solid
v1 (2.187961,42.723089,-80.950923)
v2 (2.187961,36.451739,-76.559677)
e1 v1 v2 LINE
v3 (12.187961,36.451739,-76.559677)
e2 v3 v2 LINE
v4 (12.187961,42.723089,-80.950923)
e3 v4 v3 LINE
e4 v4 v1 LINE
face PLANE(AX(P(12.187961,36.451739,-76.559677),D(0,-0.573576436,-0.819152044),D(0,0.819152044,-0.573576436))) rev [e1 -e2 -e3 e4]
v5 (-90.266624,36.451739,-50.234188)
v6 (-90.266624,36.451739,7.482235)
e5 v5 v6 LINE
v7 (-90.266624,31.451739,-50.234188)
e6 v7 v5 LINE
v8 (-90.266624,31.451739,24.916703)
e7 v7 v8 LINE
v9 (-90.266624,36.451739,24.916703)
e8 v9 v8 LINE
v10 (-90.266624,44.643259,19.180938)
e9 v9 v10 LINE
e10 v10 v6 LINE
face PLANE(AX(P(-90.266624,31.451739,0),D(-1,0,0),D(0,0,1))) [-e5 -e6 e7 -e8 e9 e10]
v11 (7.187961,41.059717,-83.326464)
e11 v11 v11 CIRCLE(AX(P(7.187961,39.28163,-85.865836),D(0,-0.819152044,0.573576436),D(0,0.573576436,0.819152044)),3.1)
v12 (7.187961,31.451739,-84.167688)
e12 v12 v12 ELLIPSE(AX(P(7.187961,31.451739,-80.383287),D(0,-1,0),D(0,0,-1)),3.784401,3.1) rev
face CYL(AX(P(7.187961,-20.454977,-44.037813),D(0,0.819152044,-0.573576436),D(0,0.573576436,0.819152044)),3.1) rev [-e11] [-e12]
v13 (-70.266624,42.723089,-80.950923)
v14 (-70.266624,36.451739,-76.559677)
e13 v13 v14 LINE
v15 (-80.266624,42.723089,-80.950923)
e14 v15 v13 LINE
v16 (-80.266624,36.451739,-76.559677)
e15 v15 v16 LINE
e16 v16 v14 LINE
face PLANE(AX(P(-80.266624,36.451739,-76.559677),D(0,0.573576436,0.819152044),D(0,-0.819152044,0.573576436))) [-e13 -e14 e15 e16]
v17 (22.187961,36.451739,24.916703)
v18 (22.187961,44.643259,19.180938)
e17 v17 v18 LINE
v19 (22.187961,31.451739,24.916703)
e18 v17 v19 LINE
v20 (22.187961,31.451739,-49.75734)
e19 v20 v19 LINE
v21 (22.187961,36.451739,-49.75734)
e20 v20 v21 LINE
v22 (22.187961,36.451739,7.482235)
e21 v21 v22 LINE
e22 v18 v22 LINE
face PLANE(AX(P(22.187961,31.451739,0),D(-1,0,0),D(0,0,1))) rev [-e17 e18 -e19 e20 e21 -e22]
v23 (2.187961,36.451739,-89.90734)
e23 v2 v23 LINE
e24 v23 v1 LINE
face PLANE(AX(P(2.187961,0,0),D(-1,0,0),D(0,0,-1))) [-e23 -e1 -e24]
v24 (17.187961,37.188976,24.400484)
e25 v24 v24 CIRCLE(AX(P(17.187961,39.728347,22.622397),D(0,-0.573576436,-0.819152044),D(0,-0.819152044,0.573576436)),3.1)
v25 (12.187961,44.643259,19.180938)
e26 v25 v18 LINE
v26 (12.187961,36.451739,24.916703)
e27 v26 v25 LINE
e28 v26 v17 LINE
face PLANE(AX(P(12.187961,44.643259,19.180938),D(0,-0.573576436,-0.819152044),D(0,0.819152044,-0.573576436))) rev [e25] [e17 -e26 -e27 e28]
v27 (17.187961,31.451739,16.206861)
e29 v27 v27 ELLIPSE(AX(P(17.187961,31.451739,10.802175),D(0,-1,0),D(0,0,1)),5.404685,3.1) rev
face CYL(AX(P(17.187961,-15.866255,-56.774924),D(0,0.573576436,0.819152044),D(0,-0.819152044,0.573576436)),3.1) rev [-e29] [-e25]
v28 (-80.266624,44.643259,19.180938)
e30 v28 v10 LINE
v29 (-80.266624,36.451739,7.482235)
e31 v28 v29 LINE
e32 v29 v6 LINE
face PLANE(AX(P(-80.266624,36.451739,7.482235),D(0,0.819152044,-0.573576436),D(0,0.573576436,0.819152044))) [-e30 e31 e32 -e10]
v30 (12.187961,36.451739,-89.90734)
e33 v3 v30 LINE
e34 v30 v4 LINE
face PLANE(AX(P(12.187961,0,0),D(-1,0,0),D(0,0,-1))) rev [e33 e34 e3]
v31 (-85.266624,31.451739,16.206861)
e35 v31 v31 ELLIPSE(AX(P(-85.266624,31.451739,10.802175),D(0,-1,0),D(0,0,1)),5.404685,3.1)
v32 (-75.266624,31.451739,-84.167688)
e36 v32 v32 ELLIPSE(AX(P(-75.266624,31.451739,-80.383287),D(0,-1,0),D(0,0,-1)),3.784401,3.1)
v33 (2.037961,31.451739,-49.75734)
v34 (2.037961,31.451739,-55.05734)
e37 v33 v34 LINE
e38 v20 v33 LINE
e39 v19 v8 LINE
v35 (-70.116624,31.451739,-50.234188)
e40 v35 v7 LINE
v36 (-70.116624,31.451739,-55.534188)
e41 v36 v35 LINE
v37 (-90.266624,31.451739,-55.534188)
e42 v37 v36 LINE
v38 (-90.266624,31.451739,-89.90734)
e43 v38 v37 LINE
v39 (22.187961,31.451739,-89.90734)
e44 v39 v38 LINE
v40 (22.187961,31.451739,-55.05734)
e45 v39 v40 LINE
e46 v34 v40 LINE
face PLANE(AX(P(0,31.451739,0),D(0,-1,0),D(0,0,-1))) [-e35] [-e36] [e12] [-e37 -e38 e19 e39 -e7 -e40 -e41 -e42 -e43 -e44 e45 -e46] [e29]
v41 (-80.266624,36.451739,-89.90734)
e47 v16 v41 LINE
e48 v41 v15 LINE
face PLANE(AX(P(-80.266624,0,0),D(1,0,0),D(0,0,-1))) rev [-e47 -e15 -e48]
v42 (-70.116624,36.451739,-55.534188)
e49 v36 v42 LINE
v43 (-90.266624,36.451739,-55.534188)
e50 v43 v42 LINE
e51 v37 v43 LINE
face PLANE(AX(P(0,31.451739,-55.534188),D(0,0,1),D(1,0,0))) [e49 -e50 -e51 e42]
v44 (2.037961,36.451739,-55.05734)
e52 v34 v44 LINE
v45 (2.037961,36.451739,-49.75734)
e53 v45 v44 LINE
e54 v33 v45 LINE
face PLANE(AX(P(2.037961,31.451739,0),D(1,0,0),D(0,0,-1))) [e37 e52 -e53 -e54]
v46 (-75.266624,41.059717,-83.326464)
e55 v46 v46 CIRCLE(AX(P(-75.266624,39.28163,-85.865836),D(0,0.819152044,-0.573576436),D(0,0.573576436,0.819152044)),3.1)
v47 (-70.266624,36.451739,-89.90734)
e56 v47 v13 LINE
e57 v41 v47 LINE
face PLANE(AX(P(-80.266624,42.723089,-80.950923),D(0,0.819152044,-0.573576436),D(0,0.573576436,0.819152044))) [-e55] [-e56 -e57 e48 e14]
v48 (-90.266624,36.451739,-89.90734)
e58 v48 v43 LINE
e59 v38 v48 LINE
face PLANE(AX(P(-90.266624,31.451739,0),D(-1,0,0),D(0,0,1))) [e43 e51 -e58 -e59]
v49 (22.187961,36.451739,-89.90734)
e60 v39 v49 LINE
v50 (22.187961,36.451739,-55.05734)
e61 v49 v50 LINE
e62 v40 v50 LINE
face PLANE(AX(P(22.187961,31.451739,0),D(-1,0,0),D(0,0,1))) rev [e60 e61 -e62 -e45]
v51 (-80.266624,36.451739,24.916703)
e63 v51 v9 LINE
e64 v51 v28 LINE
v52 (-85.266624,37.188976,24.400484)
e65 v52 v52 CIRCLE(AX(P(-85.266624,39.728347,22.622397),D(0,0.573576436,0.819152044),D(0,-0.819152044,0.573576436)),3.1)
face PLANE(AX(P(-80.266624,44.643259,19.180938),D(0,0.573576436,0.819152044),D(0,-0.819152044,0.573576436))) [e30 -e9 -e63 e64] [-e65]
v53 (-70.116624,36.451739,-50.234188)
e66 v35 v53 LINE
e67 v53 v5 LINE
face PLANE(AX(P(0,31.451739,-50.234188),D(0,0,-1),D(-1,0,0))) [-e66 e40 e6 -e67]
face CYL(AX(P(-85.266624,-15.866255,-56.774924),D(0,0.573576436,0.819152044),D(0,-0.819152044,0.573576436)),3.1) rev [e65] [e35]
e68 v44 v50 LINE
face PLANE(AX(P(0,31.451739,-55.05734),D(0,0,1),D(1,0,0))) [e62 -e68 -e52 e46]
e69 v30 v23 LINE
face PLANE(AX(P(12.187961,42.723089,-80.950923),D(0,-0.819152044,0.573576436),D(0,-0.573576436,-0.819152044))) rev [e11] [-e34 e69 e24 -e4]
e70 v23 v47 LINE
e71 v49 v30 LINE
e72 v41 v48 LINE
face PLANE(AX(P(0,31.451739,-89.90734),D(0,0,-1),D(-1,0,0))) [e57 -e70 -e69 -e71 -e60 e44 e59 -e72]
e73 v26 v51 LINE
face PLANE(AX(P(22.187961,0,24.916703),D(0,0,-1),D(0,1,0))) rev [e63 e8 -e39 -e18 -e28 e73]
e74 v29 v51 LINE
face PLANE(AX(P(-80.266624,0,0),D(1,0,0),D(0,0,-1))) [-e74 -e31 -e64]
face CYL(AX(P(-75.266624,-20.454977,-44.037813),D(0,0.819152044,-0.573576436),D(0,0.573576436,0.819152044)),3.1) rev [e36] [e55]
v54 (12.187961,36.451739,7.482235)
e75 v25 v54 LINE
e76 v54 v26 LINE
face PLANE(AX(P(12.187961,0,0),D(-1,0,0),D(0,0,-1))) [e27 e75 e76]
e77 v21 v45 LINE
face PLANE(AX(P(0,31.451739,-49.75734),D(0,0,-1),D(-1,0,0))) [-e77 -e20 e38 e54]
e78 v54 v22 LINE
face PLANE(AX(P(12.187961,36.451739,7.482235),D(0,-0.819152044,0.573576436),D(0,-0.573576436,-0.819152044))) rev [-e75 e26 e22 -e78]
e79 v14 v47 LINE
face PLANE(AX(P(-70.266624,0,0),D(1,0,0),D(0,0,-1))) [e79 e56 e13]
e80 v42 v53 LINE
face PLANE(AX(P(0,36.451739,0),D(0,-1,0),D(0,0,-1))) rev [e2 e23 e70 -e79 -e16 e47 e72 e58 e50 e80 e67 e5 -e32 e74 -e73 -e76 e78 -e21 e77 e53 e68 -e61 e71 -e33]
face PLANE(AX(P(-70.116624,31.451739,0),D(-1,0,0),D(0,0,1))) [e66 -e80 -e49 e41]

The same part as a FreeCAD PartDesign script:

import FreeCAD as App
import Part
import Sketcher

V = App.Vector
Q = App.Units.Quantity

doc = App.newDocument("Part")
body = doc.addObject("PartDesign::Body", "Body")

# Sketch on XZ plane
sketch1 = body.newObject("Sketcher::SketchObject", "Sketch")
sketch1.AttachmentSupport = (doc.getObject("XZ_Plane"), [""])
sketch1.MapMode = "FlatFace"
sketch1.AttachmentOffset = App.Placement(V(0, 0, -33.951739), App.Rotation())
sketch1.addGeometry([
    Part.LineSegment(V(-90.266624, -89.90734, 0), V(22.187961, -89.90734, 0)),  # 0
    Part.LineSegment(V(22.187961, -89.90734, 0), V(22.187961, -55.05734, 0)),  # 1
    Part.LineSegment(V(22.187961, -55.05734, 0), V(2.037961, -55.05734, 0)),  # 2
    Part.LineSegment(V(2.037961, -55.05734, 0), V(2.037961, -49.75734, 0)),  # 3
    Part.LineSegment(V(2.037961, -49.75734, 0), V(22.187961, -49.75734, 0)),  # 4
    Part.LineSegment(V(22.187961, -49.75734, 0), V(22.187961, 30.09266, 0)),  # 5
    Part.LineSegment(V(22.187961, 30.09266, 0), V(-90.266624, 30.09266, 0)),  # 6
    Part.LineSegment(V(-90.266624, 30.09266, 0), V(-90.266624, -50.234188, 0)),  # 7
    Part.LineSegment(V(-90.266624, -50.234188, 0), V(-70.116624, -50.234188, 0)),  # 8
    Part.LineSegment(V(-70.116624, -50.234188, 0), V(-70.116624, -55.534188, 0)),  # 9
    Part.LineSegment(V(-70.116624, -55.534188, 0), V(-90.266624, -55.534188, 0)),  # 10
    Part.LineSegment(V(-90.266624, -55.534188, 0), V(-90.266624, -89.90734, 0)),  # 11
], False)
sketch1.addConstraint([
    Sketcher.Constraint("Coincident", 0, 2, 1, 1),
    Sketcher.Constraint("Coincident", 1, 2, 2, 1),
    Sketcher.Constraint("Coincident", 2, 2, 3, 1),
    Sketcher.Constraint("Coincident", 3, 2, 4, 1),
    Sketcher.Constraint("Coincident", 4, 2, 5, 1),
    Sketcher.Constraint("Coincident", 5, 2, 6, 1),
    Sketcher.Constraint("Coincident", 6, 2, 7, 1),
    Sketcher.Constraint("Coincident", 7, 2, 8, 1),
    Sketcher.Constraint("Coincident", 8, 2, 9, 1),
    Sketcher.Constraint("Coincident", 9, 2, 10, 1),
    Sketcher.Constraint("Coincident", 10, 2, 11, 1),
    Sketcher.Constraint("Coincident", 11, 2, 0, 1),
    Sketcher.Constraint("Horizontal", 0),
    Sketcher.Constraint("Vertical", 1),
    Sketcher.Constraint("Horizontal", 2),
    Sketcher.Constraint("Vertical", 3),
    Sketcher.Constraint("Horizontal", 4),
    Sketcher.Constraint("Vertical", 5),
    Sketcher.Constraint("Horizontal", 6),
    Sketcher.Constraint("Vertical", 7),
    Sketcher.Constraint("Horizontal", 8),
    Sketcher.Constraint("Vertical", 9),
    Sketcher.Constraint("Horizontal", 10),
    Sketcher.Constraint("Vertical", 11),
    Sketcher.Constraint("Vertical", 1, 2, 4, 2),
    Sketcher.Constraint("Vertical", 7, 2, 10, 2),
    Sketcher.Constraint("Equal", 4, 8),
    Sketcher.Constraint("Equal", 3, 9),
    Sketcher.Constraint("DistanceY", 3, 1, 3, 2, Q("5.3 mm")),
    Sketcher.Constraint("DistanceY", 0, 2, 5, 2, Q("120 mm")),
    Sketcher.Constraint("DistanceX", 2, 2, 2, 1, Q("20.15 mm")),
    Sketcher.Constraint("DistanceY", 1, 1, 1, 2, Q("34.85 mm")),
    Sketcher.Constraint("DistanceY", 7, 2, 7, 1, Q("80.326848 mm")),
    Sketcher.Constraint("DistanceX", 0, 1, 0, 2, Q("112.454585 mm")),
    Sketcher.Constraint("DistanceX", -1, 1, 0, 2, Q("22.187961 mm")),
    Sketcher.Constraint("DistanceY", 0, 2, -1, 1, Q("89.90734 mm")),
])
pad1 = body.newObject("PartDesign::Pad", "Pad")
pad1.Profile = sketch1
pad1.Length = 5
pad1.Midplane = True

# Sketch on YZ plane
sketch2 = body.newObject("Sketcher::SketchObject", "Sketch001")
sketch2.AttachmentSupport = (doc.getObject("YZ_Plane"), [""])
sketch2.MapMode = "FlatFace"
sketch2.AttachmentOffset = App.Placement(V(0, 0, -90.266624), App.Rotation())
sketch2.addGeometry([
    Part.LineSegment(V(44.643259, 19.180938, 0), V(36.451739, 7.482235, 0)),
    Part.LineSegment(V(36.451739, 7.482235, 0), V(36.451739, 24.916703, 0)),
    Part.LineSegment(V(36.451739, 24.916703, 0), V(44.643259, 19.180938, 0)),
], False)
sketch2.addConstraint([
    Sketcher.Constraint("Coincident", 0, 2, 1, 1),
    Sketcher.Constraint("Coincident", 1, 2, 2, 1),
    Sketcher.Constraint("Coincident", 2, 2, 0, 1),
    Sketcher.Constraint("Vertical", 1),
    Sketcher.Constraint("Perpendicular", 0, 2),
    Sketcher.Constraint("Angle", 0, Q("-125 deg")),
    Sketcher.Constraint("Distance", 2, Q("10 mm")),
    Sketcher.Constraint("DistanceX", -1, 1, 0, 2, Q("36.451739 mm")),
    Sketcher.Constraint("DistanceY", -1, 1, 2, 2, Q("19.180938 mm")),
])
pad2 = body.newObject("PartDesign::Pad", "Pad001")
pad2.Profile = sketch2
pad2.Length = 10

# Sketch on an angled plane
sketch3 = body.newObject("Sketcher::SketchObject", "Sketch002")
sketch3.Placement = App.Placement(V(0, 23.699276, 33.846073), App.Rotation(V(1, 0, 0), V(0, 0.819152044, -0.573576436), V(0, 0.573576436, 0.819152044), "ZXY"))
sketch3.addGeometry(Part.Circle(V(-85.266624, 19.567883, 0), V(0, 0, 1), 3.1), False)
sketch3.addConstraint([
    Sketcher.Constraint("Diameter", 0, Q("6.2 mm")),
    Sketcher.Constraint("DistanceX", 0, 3, -1, 1, Q("85.266624 mm")),
    Sketcher.Constraint("DistanceY", -1, 1, 0, 3, Q("19.567883 mm")),
])
pocket1 = body.newObject("PartDesign::Pocket", "Pocket")
pocket1.Profile = sketch3
pocket1.Type = "ThroughAll"

# Sketch on YZ plane
sketch4 = body.newObject("Sketcher::SketchObject", "Sketch003")
sketch4.AttachmentSupport = (doc.getObject("YZ_Plane"), [""])
sketch4.MapMode = "FlatFace"
sketch4.AttachmentOffset = App.Placement(V(0, 0, -70.266624), App.Rotation())
sketch4.addGeometry([
    Part.LineSegment(V(42.723089, -80.950923, 0), V(36.451739, -76.559677, 0)),
    Part.LineSegment(V(36.451739, -76.559677, 0), V(36.451739, -89.90734, 0)),
    Part.LineSegment(V(36.451739, -89.90734, 0), V(42.723089, -80.950923, 0)),
], False)
sketch4.addConstraint([
    Sketcher.Constraint("Coincident", 0, 2, 1, 1),
    Sketcher.Constraint("Coincident", 1, 2, 2, 1),
    Sketcher.Constraint("Coincident", 2, 2, 0, 1),
    Sketcher.Constraint("Vertical", 1),
    Sketcher.Constraint("Perpendicular", 0, 2),
    Sketcher.Constraint("Angle", 0, Q("145 deg")),
    Sketcher.Constraint("DistanceY", 1, 2, 1, 1, Q("13.347663 mm")),
    Sketcher.Constraint("DistanceX", -1, 1, 0, 2, Q("36.451739 mm")),
    Sketcher.Constraint("DistanceY", 1, 2, -1, 1, Q("89.90734 mm")),
])
pad3 = body.newObject("PartDesign::Pad", "Pad002")
pad3.Profile = sketch4
pad3.Length = 10
pad3.Reversed = True

# Sketch on an angled plane
sketch5 = body.newObject("Sketcher::SketchObject", "Sketch004")
sketch5.Placement = App.Placement(V(0, 66.702116, -46.705324), App.Rotation(V(1, 0, 0), V(0, -0.573576436, -0.819152044), V(0, 0.819152044, -0.573576436), "ZXY"))
sketch5.addGeometry(Part.Circle(V(-75.266624, 47.806157, 0), V(0, 0, 1), 3.1), False)
sketch5.addConstraint([
    Sketcher.Constraint("Diameter", 0, Q("6.2 mm")),
    Sketcher.Constraint("DistanceX", 0, 3, -1, 1, Q("75.266624 mm")),
    Sketcher.Constraint("DistanceY", -1, 1, 0, 3, Q("47.806157 mm")),
])
pocket2 = body.newObject("PartDesign::Pocket", "Pocket001")
pocket2.Profile = sketch5
pocket2.Type = "ThroughAll"
doc.recompute()

datumplane = body.newObject("PartDesign::Plane", "DatumPlane")
datumplane.AttachmentSupport = (doc.getObject("YZ_Plane"), [""])
datumplane.MapMode = "FlatFace"
datumplane.AttachmentOffset = App.Placement(V(0, 0, -34.039332), App.Rotation())
mirrored = body.newObject("PartDesign::Mirrored", "Mirrored")
mirrored.Originals = [pad2, pocket1, pad3, pocket2]
mirrored.MirrorPlane = (datumplane, [""])
body.Tip = mirrored

# Sketch on YZ plane
sketch6 = body.newObject("Sketcher::SketchObject", "Sketch005")
sketch6.AttachmentSupport = (doc.getObject("YZ_Plane"), [""])
sketch6.MapMode = "FlatFace"
sketch6.AttachmentOffset = App.Placement(V(0, 0, -90.266624), App.Rotation())
sketch6.addGeometry([
    Part.LineSegment(V(36.451739, 24.916703, 0), V(31.451739, 24.916703, 0)),
    Part.LineSegment(V(31.451739, 24.916703, 0), V(31.451739, 30.09266, 0)),
    Part.LineSegment(V(31.451739, 30.09266, 0), V(36.451739, 30.09266, 0)),
    Part.LineSegment(V(36.451739, 30.09266, 0), V(36.451739, 24.916703, 0)),
], False)
sketch6.addConstraint([
    Sketcher.Constraint("Coincident", 0, 2, 1, 1),
    Sketcher.Constraint("Coincident", 1, 2, 2, 1),
    Sketcher.Constraint("Coincident", 2, 2, 3, 1),
    Sketcher.Constraint("Coincident", 3, 2, 0, 1),
    Sketcher.Constraint("Horizontal", 0),
    Sketcher.Constraint("Vertical", 1),
    Sketcher.Constraint("Horizontal", 2),
    Sketcher.Constraint("Vertical", 3),
    Sketcher.Constraint("DistanceX", 0, 2, 0, 1, Q("5 mm")),
    Sketcher.Constraint("DistanceY", 1, 1, 1, 2, Q("5.175958 mm")),
    Sketcher.Constraint("DistanceX", -1, 1, 0, 2, Q("31.451739 mm")),
    Sketcher.Constraint("DistanceY", -1, 1, 1, 2, Q("30.09266 mm")),
])
pocket3 = body.newObject("PartDesign::Pocket", "Pocket002")
pocket3.Profile = sketch6
pocket3.Type = "ThroughAll"
pocket3.Reversed = True

doc.recompute()
